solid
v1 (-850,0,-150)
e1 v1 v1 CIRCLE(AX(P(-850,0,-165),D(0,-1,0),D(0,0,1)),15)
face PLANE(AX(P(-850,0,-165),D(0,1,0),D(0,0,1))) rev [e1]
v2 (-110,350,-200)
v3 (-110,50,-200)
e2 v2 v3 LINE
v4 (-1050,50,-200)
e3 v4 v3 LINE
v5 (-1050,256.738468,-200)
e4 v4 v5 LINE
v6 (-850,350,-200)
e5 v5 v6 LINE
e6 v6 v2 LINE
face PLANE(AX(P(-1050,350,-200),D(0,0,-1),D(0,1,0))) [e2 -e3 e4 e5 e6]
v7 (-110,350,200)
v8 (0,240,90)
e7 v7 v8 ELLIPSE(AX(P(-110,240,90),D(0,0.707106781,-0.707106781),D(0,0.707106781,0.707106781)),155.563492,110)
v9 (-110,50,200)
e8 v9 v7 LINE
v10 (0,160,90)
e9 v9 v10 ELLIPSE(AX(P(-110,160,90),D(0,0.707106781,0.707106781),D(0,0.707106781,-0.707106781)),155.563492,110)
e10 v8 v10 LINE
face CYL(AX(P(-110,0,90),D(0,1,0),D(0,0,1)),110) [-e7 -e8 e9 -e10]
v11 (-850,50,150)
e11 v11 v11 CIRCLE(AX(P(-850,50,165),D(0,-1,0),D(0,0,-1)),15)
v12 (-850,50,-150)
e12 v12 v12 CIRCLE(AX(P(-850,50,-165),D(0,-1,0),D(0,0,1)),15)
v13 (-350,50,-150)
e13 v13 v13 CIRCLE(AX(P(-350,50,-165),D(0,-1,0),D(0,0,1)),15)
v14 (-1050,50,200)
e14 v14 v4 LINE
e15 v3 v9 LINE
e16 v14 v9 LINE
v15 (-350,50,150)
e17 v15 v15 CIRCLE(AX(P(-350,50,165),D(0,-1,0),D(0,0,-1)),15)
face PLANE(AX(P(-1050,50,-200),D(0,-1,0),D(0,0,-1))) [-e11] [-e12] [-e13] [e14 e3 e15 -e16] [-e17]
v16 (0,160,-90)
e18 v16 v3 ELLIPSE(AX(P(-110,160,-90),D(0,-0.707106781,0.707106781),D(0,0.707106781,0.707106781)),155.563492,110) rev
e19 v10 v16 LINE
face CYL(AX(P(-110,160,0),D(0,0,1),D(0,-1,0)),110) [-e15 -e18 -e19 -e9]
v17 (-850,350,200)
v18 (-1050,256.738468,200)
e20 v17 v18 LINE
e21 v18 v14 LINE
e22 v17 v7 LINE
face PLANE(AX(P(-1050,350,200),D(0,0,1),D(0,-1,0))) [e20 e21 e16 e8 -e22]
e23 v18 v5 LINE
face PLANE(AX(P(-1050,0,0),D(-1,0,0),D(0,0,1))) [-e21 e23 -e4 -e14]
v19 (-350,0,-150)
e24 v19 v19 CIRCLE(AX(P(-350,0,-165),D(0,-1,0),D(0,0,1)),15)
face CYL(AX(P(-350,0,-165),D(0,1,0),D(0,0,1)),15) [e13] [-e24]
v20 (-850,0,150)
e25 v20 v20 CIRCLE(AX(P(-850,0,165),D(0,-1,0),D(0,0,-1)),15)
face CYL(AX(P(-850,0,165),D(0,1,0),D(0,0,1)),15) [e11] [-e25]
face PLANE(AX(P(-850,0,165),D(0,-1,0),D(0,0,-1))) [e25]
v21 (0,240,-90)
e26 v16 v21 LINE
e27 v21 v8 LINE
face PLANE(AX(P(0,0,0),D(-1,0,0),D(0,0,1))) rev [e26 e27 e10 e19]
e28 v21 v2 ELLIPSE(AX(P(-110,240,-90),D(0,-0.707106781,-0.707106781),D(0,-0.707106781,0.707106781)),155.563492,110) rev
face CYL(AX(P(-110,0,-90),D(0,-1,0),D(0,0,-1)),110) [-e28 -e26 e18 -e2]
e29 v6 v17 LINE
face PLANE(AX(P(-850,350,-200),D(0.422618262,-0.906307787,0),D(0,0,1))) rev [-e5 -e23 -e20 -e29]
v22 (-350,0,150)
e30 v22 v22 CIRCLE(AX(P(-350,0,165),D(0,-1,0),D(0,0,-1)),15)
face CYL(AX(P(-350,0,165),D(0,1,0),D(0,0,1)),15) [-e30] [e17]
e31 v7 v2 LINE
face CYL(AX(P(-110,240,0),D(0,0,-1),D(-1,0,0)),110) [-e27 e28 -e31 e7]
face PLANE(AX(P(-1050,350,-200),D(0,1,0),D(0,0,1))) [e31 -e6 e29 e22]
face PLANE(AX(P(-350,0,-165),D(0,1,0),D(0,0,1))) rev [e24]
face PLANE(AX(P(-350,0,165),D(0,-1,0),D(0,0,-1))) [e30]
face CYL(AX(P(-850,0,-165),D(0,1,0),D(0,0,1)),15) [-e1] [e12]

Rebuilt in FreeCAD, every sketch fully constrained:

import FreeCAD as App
import Part
import Sketcher


def edges_at(feature, points):
    """Names of the edges that pass closest to the given points."""
    edges = feature.Shape.Edges
    near = lambda p: min(range(len(edges)), key=lambda i: edges[i].distToShape(Part.Vertex(*p))[0])
    return sorted({f"Edge{near(p) + 1}" for p in points})

doc = App.newDocument("Part")
body = doc.addObject("PartDesign::Body", "Body")

sketch1 = doc.addObject("Sketcher::SketchObject", "Sketch")
body.addObject(sketch1)
sketch1.AttachmentSupport = (doc.YZ_Plane, [""])
sketch1.MapMode = "FlatFace"
sketch1.addGeometry([
    Part.LineSegment(App.Vector(350, 200, 0), App.Vector(50, 200, 0)),
    Part.LineSegment(App.Vector(50, 200, 0), App.Vector(50, -200, 0)),
    Part.LineSegment(App.Vector(50, -200, 0), App.Vector(350, -200, 0)),
    Part.LineSegment(App.Vector(350, -200, 0), App.Vector(350, 200, 0)),
], False)
sketch1.addConstraint([
    Sketcher.Constraint("Coincident", 0, 2, 1, 1),
    Sketcher.Constraint("Coincident", 1, 2, 2, 1),
    Sketcher.Constraint("Coincident", 2, 2, 3, 1),
    Sketcher.Constraint("Coincident", 3, 2, 0, 1),
    Sketcher.Constraint("Horizontal", 0),
    Sketcher.Constraint("Vertical", 1),
    Sketcher.Constraint("Horizontal", 2),
    Sketcher.Constraint("Vertical", 3),
    Sketcher.Constraint("DistanceX", 0, 2, 0, 1, 300.0),
    Sketcher.Constraint("DistanceY", 1, 2, 1, 1, 400.0),
    Sketcher.Constraint("DistanceX", -1, 1, 0, 2, 50.0),
    Sketcher.Constraint("DistanceY", -1, 1, 0, 2, 200.0),
])
pad1 = doc.addObject("PartDesign::Pad", "Pad")
body.addObject(pad1)
pad1.Profile = sketch1
pad1.Length = 1050
pad1.Reversed = True
doc.recompute()

fillet = doc.addObject("PartDesign::Fillet", "Fillet")
body.addObject(fillet)
fillet.Base = (pad1, edges_at(pad1, [
    (0, 350, 0),
    (0, 200, -200),
    (0, 50, 0),
    (0, 200, 200),
]))
fillet.Radius = 110
doc.recompute()

chamfer = doc.addObject("PartDesign::Chamfer", "Chamfer")
body.addObject(chamfer)
chamfer.Base = (fillet, edges_at(fillet, [(-1050, 350, 0)]))
chamfer.ChamferType = "Two distances"
chamfer.Size = 200
chamfer.Size2 = 93.261532

sketch2 = doc.addObject("Sketcher::SketchObject", "Sketch001")
body.addObject(sketch2)
sketch2.AttachmentSupport = (doc.XZ_Plane, [""])
sketch2.MapMode = "FlatFace"
sketch2.AttachmentOffset = App.Placement(App.Vector(0, 0, -50), App.Rotation())
sketch2.addGeometry([
    Part.Circle(App.Vector(-850, 165, 0), App.Vector(0, 0, 1), 15),
    Part.Circle(App.Vector(-350, 165, 0), App.Vector(0, 0, 1), 15),
    Part.Circle(App.Vector(-350, -165, 0), App.Vector(0, 0, 1), 15),
    Part.Circle(App.Vector(-850, -165, 0), App.Vector(0, 0, 1), 15),
], False)
sketch2.addConstraint([
    Sketcher.Constraint("Equal", 0, 1),
    Sketcher.Constraint("Equal", 1, 2),
    Sketcher.Constraint("Equal", 2, 3),
    Sketcher.Constraint("Symmetric", 1, 3, 2, 3, -1),
    Sketcher.Constraint("Symmetric", 0, 3, 3, 3, -1),
    Sketcher.Constraint("Horizontal", 0, 3, 1, 3),
    Sketcher.Constraint("Diameter", 0, 30.0),
    Sketcher.Constraint("DistanceX", 0, 3, -1, 1, 850.0),
    Sketcher.Constraint("DistanceY", -1, 1, 0, 3, 165.0),
    Sketcher.Constraint("DistanceX", 1, 3, -1, 1, 350.0),
])
pad2 = doc.addObject("PartDesign::Pad", "Pad001")
body.addObject(pad2)
pad2.Profile = sketch2
pad2.Length = 50

doc.recompute()
